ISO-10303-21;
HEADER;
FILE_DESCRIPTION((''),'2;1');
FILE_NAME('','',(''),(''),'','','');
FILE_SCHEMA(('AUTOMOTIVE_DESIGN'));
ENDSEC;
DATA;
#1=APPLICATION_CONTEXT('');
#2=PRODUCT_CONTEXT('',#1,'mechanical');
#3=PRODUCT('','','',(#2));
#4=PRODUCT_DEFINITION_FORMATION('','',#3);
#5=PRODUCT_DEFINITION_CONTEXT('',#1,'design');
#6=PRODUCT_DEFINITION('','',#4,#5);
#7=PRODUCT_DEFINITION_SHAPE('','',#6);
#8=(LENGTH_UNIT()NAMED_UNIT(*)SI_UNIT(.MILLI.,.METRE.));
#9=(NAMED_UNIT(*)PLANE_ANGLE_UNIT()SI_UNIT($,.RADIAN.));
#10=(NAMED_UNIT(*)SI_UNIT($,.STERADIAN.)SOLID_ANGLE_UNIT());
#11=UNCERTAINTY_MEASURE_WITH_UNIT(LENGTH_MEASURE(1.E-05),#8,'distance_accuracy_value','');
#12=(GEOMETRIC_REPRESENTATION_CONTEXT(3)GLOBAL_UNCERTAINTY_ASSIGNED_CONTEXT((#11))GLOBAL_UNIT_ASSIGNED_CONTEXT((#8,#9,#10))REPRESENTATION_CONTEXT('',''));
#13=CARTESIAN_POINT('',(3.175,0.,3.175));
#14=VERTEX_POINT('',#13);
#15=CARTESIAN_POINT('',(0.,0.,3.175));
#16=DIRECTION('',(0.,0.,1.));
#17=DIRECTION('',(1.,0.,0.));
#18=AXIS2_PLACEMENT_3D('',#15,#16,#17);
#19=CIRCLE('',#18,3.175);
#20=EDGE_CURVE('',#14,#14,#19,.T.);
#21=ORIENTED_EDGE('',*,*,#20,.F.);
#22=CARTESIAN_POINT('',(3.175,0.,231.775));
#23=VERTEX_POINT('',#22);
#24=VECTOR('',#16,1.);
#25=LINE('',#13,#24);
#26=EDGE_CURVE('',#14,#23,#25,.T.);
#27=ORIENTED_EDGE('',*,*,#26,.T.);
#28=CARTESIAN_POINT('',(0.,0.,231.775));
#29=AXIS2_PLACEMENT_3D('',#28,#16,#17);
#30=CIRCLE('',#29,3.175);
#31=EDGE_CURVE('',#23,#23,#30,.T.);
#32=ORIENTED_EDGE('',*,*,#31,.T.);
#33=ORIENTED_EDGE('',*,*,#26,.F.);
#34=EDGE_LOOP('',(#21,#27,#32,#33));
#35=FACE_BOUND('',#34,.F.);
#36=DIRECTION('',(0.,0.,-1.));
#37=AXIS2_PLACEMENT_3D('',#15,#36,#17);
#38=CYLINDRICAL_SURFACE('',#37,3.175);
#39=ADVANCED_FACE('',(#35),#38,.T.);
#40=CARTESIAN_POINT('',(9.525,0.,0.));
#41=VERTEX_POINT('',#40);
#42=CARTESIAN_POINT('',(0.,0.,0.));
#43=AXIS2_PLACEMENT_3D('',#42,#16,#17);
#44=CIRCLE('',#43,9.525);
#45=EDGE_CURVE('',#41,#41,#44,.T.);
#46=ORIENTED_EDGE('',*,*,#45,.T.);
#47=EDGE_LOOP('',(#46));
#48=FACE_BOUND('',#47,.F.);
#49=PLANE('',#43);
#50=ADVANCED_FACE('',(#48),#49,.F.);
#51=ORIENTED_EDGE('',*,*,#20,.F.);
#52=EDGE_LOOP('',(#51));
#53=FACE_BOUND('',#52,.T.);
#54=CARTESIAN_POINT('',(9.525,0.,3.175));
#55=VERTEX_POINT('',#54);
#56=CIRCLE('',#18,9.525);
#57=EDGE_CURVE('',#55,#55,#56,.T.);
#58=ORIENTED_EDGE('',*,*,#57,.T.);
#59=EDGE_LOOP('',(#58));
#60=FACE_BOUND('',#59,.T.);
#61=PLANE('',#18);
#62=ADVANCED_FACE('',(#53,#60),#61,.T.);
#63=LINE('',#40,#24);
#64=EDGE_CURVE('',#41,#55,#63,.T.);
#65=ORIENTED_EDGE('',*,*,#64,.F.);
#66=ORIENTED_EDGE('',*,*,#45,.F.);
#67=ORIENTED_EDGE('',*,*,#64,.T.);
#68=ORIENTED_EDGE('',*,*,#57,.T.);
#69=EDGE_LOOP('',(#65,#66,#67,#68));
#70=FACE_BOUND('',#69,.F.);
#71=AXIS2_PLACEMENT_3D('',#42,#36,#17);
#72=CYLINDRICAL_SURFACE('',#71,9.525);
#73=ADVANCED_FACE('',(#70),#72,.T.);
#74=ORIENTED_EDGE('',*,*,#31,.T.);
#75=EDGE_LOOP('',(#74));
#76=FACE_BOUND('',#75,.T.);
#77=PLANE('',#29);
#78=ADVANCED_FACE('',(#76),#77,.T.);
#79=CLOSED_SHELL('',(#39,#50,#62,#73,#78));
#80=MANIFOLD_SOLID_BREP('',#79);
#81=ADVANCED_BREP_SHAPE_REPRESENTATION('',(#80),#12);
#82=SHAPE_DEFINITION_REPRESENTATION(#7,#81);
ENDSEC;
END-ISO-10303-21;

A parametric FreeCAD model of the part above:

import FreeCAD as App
import Part
import Sketcher
from FreeCAD import Vector
Q = App.Units.Quantity

doc = App.newDocument("Part")
body = doc.addObject("PartDesign::Body", "Body")

sketch1 = body.newObject("Sketcher::SketchObject", "Sketch")
sketch1.AttachmentSupport = (doc.getObject("XY_Plane"), [""])
sketch1.MapMode = "FlatFace"
sketch1.addGeometry(Part.Circle(Vector(0, 0, 0), Vector(0, 0, 1), 9.525), False)
sketch1.addConstraint([
    Sketcher.Constraint("Coincident", 0, 3, -1, 1),
    Sketcher.Constraint("Diameter", 0, Q("0.75 in")),
])
pad1 = body.newObject("PartDesign::Pad", "Pad")
pad1.Profile = sketch1
pad1.Length = Q("0.125 in")

sketch2 = body.newObject("Sketcher::SketchObject", "Sketch001")
sketch2.AttachmentSupport = (doc.getObject("XY_Plane"), [""])
sketch2.MapMode = "FlatFace"
sketch2.AttachmentOffset = App.Placement(Vector(0, 0, 0.125 * 25.4), App.Rotation())
sketch2.addGeometry(Part.Circle(Vector(0, 0, 0), Vector(0, 0, 1), 3.175), False)
sketch2.addConstraint([
    Sketcher.Constraint("Coincident", 0, 3, -1, 1),
    Sketcher.Constraint("Diameter", 0, Q("0.25 in")),
])
pad2 = body.newObject("PartDesign::Pad", "Pad001")
pad2.Profile = sketch2
pad2.Length = Q("9 in")

doc.recompute()
